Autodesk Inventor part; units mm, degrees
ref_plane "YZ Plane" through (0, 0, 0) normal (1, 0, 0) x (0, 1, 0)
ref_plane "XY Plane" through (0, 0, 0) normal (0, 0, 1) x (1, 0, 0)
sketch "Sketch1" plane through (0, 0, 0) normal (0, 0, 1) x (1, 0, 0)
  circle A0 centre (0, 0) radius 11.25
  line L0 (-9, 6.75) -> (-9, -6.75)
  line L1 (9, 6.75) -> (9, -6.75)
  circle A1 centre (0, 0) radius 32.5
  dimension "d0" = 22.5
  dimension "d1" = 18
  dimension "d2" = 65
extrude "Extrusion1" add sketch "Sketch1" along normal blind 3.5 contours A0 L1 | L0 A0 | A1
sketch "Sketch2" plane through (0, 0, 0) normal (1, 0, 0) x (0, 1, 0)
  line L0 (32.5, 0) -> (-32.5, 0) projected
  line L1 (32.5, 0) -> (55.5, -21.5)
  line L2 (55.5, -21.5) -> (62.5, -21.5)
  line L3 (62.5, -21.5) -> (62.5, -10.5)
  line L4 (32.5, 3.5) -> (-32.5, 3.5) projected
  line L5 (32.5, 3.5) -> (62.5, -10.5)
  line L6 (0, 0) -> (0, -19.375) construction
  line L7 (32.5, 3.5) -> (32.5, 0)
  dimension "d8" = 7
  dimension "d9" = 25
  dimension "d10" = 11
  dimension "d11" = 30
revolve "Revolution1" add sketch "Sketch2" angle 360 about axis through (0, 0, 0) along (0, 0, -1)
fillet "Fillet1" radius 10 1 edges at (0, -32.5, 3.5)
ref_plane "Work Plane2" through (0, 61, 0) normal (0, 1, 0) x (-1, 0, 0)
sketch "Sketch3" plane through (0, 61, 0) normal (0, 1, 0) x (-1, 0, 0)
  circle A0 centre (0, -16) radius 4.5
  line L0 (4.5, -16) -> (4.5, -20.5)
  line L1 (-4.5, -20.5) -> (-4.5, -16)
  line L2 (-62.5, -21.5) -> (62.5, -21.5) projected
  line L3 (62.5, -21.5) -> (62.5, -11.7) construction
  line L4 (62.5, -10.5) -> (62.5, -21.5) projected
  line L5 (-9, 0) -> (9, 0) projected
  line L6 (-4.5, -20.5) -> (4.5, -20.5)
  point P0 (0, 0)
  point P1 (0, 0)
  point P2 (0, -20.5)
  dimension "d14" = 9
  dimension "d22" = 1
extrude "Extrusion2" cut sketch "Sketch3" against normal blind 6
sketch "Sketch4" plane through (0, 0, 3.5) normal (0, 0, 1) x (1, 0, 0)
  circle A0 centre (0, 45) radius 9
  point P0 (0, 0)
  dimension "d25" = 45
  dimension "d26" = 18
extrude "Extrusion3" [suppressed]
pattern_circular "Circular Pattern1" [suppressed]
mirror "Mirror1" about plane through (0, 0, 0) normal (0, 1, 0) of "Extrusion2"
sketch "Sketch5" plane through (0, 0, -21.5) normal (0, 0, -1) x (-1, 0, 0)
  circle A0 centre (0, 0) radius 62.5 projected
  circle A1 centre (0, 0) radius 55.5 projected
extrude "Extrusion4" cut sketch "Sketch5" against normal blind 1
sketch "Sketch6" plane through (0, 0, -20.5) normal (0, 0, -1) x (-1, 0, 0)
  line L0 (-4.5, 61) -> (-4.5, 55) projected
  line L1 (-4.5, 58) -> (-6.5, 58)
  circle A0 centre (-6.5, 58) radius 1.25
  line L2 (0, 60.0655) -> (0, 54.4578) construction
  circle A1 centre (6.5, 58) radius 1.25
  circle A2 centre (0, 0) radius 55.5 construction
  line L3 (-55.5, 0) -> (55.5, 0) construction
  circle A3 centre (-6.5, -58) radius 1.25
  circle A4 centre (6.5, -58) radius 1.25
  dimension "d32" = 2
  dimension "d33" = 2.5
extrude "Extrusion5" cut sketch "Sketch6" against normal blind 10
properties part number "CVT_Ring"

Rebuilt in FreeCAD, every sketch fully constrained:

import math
import FreeCAD as App
import Part
import Sketcher
from FreeCAD import Vector


def edges_at(feature, points):
    """Names of the edges that pass closest to the given points."""
    edges = feature.Shape.Edges
    near = lambda p: min(range(len(edges)), key=lambda i: edges[i].distToShape(Part.Vertex(*p))[0])
    return sorted({f"Edge{near(p) + 1}" for p in points})


def add_polygon(sketch, points):
    """Adds a closed chain of lines whose ends are joined by coincident constraints."""
    first, n = sketch.GeometryCount, len(points)
    for a, b in zip(points, points[1:] + points[:1]):
        sketch.addGeometry(Part.LineSegment(App.Vector(*a, 0), App.Vector(*b, 0)), False)
    for i in range(n):
        sketch.addConstraint(Sketcher.Constraint("Coincident", first + i, 2, first + (i + 1) % n, 1))

doc = App.newDocument("Part")
body = doc.addObject("PartDesign::Body", "Body")

# Sketch on XY plane
sketch1 = body.newObject("Sketcher::SketchObject", "Sketch")
sketch1.AttachmentSupport = (doc.getObject("XY_Plane"), [""])
sketch1.MapMode = "FlatFace"
sketch1.addGeometry(Part.Circle(Vector(0, 0, 0), Vector(0, 0, 1), 32), False)
sketch1.addGeometry(Part.LineSegment(Vector(9, 7, 0), Vector(9, -7, 0)), False)
sketch1.addGeometry(Part.ArcOfCircle(Part.Circle(Vector(0, 0, 0), Vector(0, 0, 1), 11), math.radians(-143), math.radians(-37)), False)
sketch1.addGeometry(Part.LineSegment(Vector(-9, -7, 0), Vector(-9, 7, 0)), False)
sketch1.addGeometry(Part.ArcOfCircle(Part.Circle(Vector(0, 0, 0), Vector(0, 0, 1), 11), math.radians(37), math.radians(143)), False)
sketch1.addConstraint(Sketcher.Constraint("Coincident", 1, 2, 2, 2))
sketch1.addConstraint(Sketcher.Constraint("Coincident", 2, 1, 3, 1))
sketch1.addConstraint(Sketcher.Constraint("Coincident", 3, 2, 4, 2))
sketch1.addConstraint(Sketcher.Constraint("Coincident", 4, 1, 1, 1))
sketch1.addConstraint(Sketcher.Constraint("Vertical", 1))
sketch1.addConstraint(Sketcher.Constraint("Vertical", 3))
sketch1.addConstraint(Sketcher.Constraint("Coincident", 0, 3, -1, 1))
sketch1.addConstraint(Sketcher.Constraint("Coincident", 2, 3, -1, 1))
sketch1.addConstraint(Sketcher.Constraint("Coincident", 4, 3, -1, 1))
sketch1.addConstraint(Sketcher.Constraint("Equal", 2, 4))
sketch1.addConstraint(Sketcher.Constraint("Horizontal", 1, 2, 2, 1))
sketch1.addConstraint(Sketcher.Constraint("Diameter", 0, 65.0))
sketch1.addConstraint(Sketcher.Constraint("Radius", 2, 11.25))
sketch1.addConstraint(Sketcher.Constraint("DistanceX", 2, 1, 1, 2, 18.0))
pad1 = body.newObject("PartDesign::Pad", "Pad")
pad1.Profile = sketch1
pad1.Length = 3.5

# Sketch on YZ plane
sketch2 = body.newObject("Sketcher::SketchObject", "Sketch001")
sketch2.AttachmentSupport = (doc.getObject("YZ_Plane"), [""])
sketch2.MapMode = "FlatFace"
add_polygon(sketch2, [(32.5, 3.5), (32.5, 0), (55.5, -21.5), (62.5, -21.5), (62.5, -10.5)])  # lines 0-4
sketch2.addConstraint(Sketcher.Constraint("Vertical", 0))
sketch2.addConstraint(Sketcher.Constraint("Horizontal", 2))
sketch2.addConstraint(Sketcher.Constraint("Vertical", 3))
sketch2.addConstraint(Sketcher.Constraint("PointOnObject", 0, 2, -1))
sketch2.addConstraint(Sketcher.Constraint("DistanceX", 2, 1, 2, 2, 7.0))
sketch2.addConstraint(Sketcher.Constraint("DistanceY", 3, 1, 3, 2, 11.0))
sketch2.addConstraint(Sketcher.Constraint("DistanceX", 0, 2, 2, 2, 30.0))
sketch2.addConstraint(Sketcher.Constraint("DistanceY", 1, 2, 4, 2, 25.0))
sketch2.addConstraint(Sketcher.Constraint("DistanceY", 0, 2, 0, 1, 3.5))
sketch2.addConstraint(Sketcher.Constraint("DistanceX", -1, 1, 0, 2, 32.5))
revolution = body.newObject("PartDesign::Revolution", "Revolution")
revolution.Profile = sketch2
revolution.ReferenceAxis = (sketch2, ["V_Axis"])
revolution.Angle = 360
doc.recompute()

fillet = body.newObject("PartDesign::Fillet", "Fillet")
fillet.Base = (revolution, edges_at(revolution, [(0, -32.5, 3.5)]))
fillet.Radius = 10

# Sketch on XZ plane
sketch3 = body.newObject("Sketcher::SketchObject", "Sketch002")
sketch3.AttachmentSupport = (doc.getObject("XZ_Plane"), [""])
sketch3.MapMode = "FlatFace"
sketch3.AttachmentOffset = App.Placement(Vector(0, 0, -61), App.Rotation())
sketch3.addGeometry(Part.ArcOfCircle(Part.Circle(Vector(0, -16, 0), Vector(0, 0, 1), 4.5), math.radians(0), math.radians(180)), False)
sketch3.addGeometry(Part.LineSegment(Vector(4.5, -16, 0), Vector(4.5, -20.5, 0)), False)
sketch3.addGeometry(Part.LineSegment(Vector(4.5, -20.5, 0), Vector(-4.5, -20.5, 0)), False)
sketch3.addGeometry(Part.LineSegment(Vector(-4.5, -20.5, 0), Vector(-4.5, -16, 0)), False)
sketch3.addConstraint(Sketcher.Constraint("Tangent", 0, 1, 1, 1))
sketch3.addConstraint(Sketcher.Constraint("Coincident", 1, 2, 2, 1))
sketch3.addConstraint(Sketcher.Constraint("Coincident", 2, 2, 3, 1))
sketch3.addConstraint(Sketcher.Constraint("Tangent", 3, 2, 0, 2))
sketch3.addConstraint(Sketcher.Constraint("Vertical", 1))
sketch3.addConstraint(Sketcher.Constraint("Horizontal", 2))
sketch3.addConstraint(Sketcher.Constraint("Vertical", 3))
sketch3.addConstraint(Sketcher.Constraint("PointOnObject", 0, 3, -2))
sketch3.addConstraint(Sketcher.Constraint("Radius", 0, 4.5))
sketch3.addConstraint(Sketcher.Constraint("DistanceY", 1, 2, 1, 1, 4.5))
sketch3.addConstraint(Sketcher.Constraint("DistanceY", 0, 3, -1, 1, 16.0))
pocket1 = body.newObject("PartDesign::Pocket", "Pocket")
pocket1.Profile = sketch3
pocket1.Length = 6
pocket1.Reversed = True
doc.recompute()

mirrored = body.newObject("PartDesign::Mirrored", "Mirrored")
mirrored.Originals = [pocket1]
mirrored.MirrorPlane = (doc.getObject("XZ_Plane"), [""])
body.Tip = mirrored

# Sketch on XY plane
sketch4 = body.newObject("Sketcher::SketchObject", "Sketch003")
sketch4.AttachmentSupport = (doc.getObject("XY_Plane"), [""])
sketch4.MapMode = "FlatFace"
sketch4.AttachmentOffset = App.Placement(Vector(0, 0, -21.5), App.Rotation())
sketch4.addGeometry(Part.Circle(Vector(0, 0, 0), Vector(0, 0, 1), 62), False)
sketch4.addGeometry(Part.Circle(Vector(0, 0, 0), Vector(0, 0, 1), 56), False)
sketch4.addConstraint(Sketcher.Constraint("Coincident", 0, 3, -1, 1))
sketch4.addConstraint(Sketcher.Constraint("Coincident", 1, 3, -1, 1))
sketch4.addConstraint(Sketcher.Constraint("Diameter", 0, 125.0))
sketch4.addConstraint(Sketcher.Constraint("Diameter", 1, 111.0))
pocket2 = body.newObject("PartDesign::Pocket", "Pocket001")
pocket2.Profile = sketch4
pocket2.Length = 1
pocket2.Reversed = True

# Sketch on XY plane
sketch5 = body.newObject("Sketcher::SketchObject", "Sketch004")
sketch5.AttachmentSupport = (doc.getObject("XY_Plane"), [""])
sketch5.MapMode = "FlatFace"
sketch5.AttachmentOffset = App.Placement(Vector(0, 0, -20.5), App.Rotation())
sketch5.addGeometry(Part.Circle(Vector(6.5, 58, 0), Vector(0, 0, 1), 1.2), False)
sketch5.addGeometry(Part.Circle(Vector(-6.5, 58, 0), Vector(0, 0, 1), 1.2), False)
sketch5.addGeometry(Part.Circle(Vector(6.5, -58, 0), Vector(0, 0, 1), 1.2), False)
sketch5.addGeometry(Part.Circle(Vector(-6.5, -58, 0), Vector(0, 0, 1), 1.2), False)
sketch5.addConstraint(Sketcher.Constraint("Equal", 0, 1))
sketch5.addConstraint(Sketcher.Constraint("Equal", 1, 2))
sketch5.addConstraint(Sketcher.Constraint("Equal", 2, 3))
sketch5.addConstraint(Sketcher.Constraint("Symmetric", 1, 3, 2, 3, -1, 1))
sketch5.addConstraint(Sketcher.Constraint("Symmetric", 0, 3, 3, 3, -1, 1))
sketch5.addConstraint(Sketcher.Constraint("Symmetric", 0, 3, 1, 3, -2))
sketch5.addConstraint(Sketcher.Constraint("Diameter", 0, 2.5))
sketch5.addConstraint(Sketcher.Constraint("DistanceY", -1, 1, 0, 3, 58.0))
sketch5.addConstraint(Sketcher.Constraint("DistanceX", 1, 3, 0, 3, 13.0))
pocket3 = body.newObject("PartDesign::Pocket", "Pocket002")
pocket3.Profile = sketch5
pocket3.Length = 10
pocket3.Reversed = True

doc.recompute()
